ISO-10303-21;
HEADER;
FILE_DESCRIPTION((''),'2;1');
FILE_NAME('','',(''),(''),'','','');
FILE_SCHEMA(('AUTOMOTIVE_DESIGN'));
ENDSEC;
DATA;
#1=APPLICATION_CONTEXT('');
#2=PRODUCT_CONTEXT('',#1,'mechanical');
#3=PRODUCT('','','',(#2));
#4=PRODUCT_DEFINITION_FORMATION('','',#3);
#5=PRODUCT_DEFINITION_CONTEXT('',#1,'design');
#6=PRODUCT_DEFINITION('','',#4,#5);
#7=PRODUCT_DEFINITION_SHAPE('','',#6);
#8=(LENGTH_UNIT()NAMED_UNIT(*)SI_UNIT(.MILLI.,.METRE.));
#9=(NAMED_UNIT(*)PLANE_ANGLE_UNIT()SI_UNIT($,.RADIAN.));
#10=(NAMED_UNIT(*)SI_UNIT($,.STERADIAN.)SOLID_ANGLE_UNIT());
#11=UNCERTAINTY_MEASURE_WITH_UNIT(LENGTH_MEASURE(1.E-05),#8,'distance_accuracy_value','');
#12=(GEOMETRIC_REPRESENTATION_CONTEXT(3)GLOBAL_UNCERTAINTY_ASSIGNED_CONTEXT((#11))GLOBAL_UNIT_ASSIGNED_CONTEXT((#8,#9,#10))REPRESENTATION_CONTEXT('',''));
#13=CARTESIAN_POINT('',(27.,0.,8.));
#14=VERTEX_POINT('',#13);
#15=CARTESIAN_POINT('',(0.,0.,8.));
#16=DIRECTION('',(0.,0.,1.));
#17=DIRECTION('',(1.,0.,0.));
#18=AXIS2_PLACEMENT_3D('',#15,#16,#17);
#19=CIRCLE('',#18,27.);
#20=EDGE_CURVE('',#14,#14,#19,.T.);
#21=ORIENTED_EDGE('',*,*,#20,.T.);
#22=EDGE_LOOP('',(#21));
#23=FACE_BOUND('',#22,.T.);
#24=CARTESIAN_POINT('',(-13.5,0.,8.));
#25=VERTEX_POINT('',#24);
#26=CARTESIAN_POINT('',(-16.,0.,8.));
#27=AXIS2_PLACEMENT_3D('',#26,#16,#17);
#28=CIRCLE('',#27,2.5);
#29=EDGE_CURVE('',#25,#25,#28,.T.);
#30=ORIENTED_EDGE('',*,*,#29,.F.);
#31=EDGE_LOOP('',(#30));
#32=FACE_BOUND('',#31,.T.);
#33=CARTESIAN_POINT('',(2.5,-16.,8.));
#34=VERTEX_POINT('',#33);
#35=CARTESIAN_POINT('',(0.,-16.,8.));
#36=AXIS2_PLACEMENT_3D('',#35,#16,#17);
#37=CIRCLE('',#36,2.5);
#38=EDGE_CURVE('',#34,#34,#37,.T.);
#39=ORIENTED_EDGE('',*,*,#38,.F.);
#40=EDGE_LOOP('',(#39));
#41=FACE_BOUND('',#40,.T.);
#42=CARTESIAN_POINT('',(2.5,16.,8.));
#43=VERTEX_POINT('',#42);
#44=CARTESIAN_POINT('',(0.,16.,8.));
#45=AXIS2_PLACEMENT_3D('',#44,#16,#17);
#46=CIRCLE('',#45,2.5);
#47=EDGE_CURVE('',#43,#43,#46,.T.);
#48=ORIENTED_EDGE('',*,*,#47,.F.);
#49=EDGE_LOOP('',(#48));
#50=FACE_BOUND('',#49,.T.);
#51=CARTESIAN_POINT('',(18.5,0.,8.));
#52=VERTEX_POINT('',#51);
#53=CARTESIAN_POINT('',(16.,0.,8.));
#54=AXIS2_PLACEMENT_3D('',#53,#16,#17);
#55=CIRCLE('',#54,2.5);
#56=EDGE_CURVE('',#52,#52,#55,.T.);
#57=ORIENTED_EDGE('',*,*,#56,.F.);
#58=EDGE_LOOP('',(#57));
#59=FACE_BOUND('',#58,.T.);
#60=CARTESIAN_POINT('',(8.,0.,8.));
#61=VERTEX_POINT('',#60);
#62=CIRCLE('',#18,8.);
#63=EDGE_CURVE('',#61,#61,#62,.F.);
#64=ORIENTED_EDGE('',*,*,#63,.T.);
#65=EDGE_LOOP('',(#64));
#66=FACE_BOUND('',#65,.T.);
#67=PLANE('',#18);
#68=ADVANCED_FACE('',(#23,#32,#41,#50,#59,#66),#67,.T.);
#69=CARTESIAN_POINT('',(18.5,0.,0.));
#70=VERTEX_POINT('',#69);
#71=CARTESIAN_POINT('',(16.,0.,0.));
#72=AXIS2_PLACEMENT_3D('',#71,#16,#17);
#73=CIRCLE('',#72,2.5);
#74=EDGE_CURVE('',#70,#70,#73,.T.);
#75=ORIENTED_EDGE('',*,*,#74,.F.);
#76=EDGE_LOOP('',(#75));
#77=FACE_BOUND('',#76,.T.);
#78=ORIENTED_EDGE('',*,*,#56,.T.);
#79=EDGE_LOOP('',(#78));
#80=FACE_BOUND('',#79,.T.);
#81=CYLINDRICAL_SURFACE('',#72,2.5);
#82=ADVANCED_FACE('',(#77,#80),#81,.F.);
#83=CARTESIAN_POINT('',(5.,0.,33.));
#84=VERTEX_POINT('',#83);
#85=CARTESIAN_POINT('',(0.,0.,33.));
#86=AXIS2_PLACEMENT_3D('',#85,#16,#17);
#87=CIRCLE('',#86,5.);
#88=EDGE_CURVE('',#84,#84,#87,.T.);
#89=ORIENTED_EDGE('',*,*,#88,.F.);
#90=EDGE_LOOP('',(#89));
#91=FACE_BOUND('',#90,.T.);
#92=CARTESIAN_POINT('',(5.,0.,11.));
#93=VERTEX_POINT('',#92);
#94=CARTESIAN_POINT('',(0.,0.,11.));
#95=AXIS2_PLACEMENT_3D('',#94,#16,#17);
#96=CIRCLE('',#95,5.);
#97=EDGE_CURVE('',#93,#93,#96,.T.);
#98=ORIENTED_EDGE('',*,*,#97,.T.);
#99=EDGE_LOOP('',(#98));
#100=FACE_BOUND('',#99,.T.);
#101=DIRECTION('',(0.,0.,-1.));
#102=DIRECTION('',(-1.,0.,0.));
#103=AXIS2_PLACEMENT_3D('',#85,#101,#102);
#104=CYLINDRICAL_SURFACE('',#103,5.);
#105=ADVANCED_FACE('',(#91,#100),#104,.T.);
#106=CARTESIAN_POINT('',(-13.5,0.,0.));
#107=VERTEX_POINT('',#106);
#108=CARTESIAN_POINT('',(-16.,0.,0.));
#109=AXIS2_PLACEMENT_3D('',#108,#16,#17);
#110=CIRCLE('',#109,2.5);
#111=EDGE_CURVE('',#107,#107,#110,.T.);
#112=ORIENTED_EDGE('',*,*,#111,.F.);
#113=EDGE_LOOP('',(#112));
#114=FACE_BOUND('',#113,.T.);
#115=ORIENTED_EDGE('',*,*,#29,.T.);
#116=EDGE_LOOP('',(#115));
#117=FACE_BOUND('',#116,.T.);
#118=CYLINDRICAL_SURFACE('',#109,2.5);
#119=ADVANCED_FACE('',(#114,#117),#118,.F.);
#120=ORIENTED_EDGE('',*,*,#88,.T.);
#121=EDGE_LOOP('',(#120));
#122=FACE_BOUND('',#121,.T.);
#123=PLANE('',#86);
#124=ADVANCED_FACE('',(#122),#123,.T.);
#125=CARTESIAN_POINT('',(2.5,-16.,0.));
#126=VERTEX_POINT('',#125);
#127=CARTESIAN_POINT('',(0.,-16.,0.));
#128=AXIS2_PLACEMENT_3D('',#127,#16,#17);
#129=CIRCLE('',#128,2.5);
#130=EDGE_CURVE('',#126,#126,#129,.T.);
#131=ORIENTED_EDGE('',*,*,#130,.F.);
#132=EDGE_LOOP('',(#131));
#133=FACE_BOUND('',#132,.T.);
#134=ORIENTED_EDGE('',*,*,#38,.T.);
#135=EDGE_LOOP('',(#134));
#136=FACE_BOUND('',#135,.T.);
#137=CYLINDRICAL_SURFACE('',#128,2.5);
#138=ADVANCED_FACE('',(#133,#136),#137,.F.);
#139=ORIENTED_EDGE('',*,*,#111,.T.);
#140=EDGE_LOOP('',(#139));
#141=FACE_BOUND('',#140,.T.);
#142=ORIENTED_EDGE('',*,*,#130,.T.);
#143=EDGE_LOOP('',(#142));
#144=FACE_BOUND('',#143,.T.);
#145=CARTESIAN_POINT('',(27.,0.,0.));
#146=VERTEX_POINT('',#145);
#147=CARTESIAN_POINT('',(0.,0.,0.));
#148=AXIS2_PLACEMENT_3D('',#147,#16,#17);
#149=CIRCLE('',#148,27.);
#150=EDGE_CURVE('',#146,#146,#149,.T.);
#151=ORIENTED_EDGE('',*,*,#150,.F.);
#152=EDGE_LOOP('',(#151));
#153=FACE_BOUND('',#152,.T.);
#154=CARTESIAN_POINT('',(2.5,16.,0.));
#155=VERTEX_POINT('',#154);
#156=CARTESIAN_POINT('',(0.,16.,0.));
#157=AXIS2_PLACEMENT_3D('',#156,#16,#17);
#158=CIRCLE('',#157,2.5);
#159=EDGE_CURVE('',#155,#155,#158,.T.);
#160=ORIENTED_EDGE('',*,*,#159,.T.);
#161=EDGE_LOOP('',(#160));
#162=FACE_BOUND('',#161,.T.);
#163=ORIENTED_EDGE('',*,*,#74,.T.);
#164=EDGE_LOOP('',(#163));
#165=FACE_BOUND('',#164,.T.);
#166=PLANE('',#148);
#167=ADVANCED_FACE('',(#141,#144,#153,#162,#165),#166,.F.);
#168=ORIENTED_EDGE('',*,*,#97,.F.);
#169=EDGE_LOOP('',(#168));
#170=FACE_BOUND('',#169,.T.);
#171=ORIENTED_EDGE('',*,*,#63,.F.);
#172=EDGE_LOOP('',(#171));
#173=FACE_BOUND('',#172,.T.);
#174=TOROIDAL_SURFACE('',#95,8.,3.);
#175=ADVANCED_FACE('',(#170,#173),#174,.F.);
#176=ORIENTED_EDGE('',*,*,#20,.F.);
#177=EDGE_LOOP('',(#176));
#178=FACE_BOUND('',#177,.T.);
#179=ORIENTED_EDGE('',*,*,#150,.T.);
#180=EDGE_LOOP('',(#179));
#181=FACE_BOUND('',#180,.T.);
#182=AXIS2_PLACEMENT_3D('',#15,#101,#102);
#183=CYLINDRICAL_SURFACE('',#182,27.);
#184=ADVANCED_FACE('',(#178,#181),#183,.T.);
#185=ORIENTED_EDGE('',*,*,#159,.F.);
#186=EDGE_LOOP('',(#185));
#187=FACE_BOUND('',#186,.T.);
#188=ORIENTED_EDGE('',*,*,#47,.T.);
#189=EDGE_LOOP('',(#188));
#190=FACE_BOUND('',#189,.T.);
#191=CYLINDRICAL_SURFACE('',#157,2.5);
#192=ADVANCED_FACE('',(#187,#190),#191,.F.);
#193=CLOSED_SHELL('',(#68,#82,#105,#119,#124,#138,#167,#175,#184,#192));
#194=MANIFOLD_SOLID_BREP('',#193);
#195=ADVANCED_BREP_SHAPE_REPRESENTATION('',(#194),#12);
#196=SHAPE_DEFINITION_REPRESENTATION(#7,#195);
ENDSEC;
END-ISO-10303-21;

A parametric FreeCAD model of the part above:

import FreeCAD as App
import Part
import Sketcher

V = App.Vector


def edges_at(feature, points):
    """Names of the edges that pass closest to the given points."""
    edges = feature.Shape.Edges
    near = lambda p: min(range(len(edges)), key=lambda i: edges[i].distToShape(Part.Vertex(*p))[0])
    return sorted({f"Edge{near(p) + 1}" for p in points})

doc = App.newDocument("Part")
params = doc.addObject("Spreadsheet::Sheet", "Params")
for row, (alias, value) in enumerate([
    ("sketch1_diameter", "54 mm"),
    ("pad1_length", "8 mm"),
    ("sketch2_diameter", "5 mm"),
    ("pocket1_length", "8 mm"),
    ("sketch3_diameter", "10 mm"),
    ("pad2_length", "25 mm"),
    ("fillet_radius", "3 mm"),
], start=1):
    params.set(f"A{row}", alias)
    params.set(f"B{row}", "=" + value)
    params.setAlias(f"B{row}", alias)

body = doc.addObject("PartDesign::Body", "Body")

# Sketch on XY plane
sketch1 = body.newObject("Sketcher::SketchObject", "Sketch")
sketch1.AttachmentSupport = (doc.getObject("XY_Plane"), [""])
sketch1.MapMode = "FlatFace"
sketch1.addGeometry(Part.Circle(V(0, 0, 0), V(0, 0, 1), 27), False)
sketch1.addConstraint([
    Sketcher.Constraint("Coincident", 0, 3, -1, 1),
    Sketcher.Constraint("Diameter", 0, 54.0),
])
sketch1.setExpression("Constraints[1]", "Params.sketch1_diameter")
pad1 = body.newObject("PartDesign::Pad", "Pad")
pad1.Profile = sketch1
pad1.setExpression("Length", "Params.pad1_length")

# Sketch on XY plane
sketch2 = body.newObject("Sketcher::SketchObject", "Sketch001")
sketch2.AttachmentSupport = (doc.getObject("XY_Plane"), [""])
sketch2.MapMode = "FlatFace"
sketch2.AttachmentOffset = App.Placement(V(0, 0, 8), App.Rotation())
sketch2.addGeometry([
    Part.Circle(V(-16, 0, 0), V(0, 0, 1), 2.5),
    Part.Circle(V(0, 16, 0), V(0, 0, 1), 2.5),
    Part.Circle(V(16, 0, 0), V(0, 0, 1), 2.5),
    Part.Circle(V(0, -16, 0), V(0, 0, 1), 2.5),
], False)
sketch2.addConstraint([
    Sketcher.Constraint("Equal", 0, 1),
    Sketcher.Constraint("Equal", 1, 2),
    Sketcher.Constraint("Equal", 2, 3),
    Sketcher.Constraint("Symmetric", 0, 3, 2, 3, -1, 1),
    Sketcher.Constraint("Symmetric", 1, 3, 3, 3, -1, 1),
    Sketcher.Constraint("PointOnObject", 0, 3, -1),
    Sketcher.Constraint("PointOnObject", 1, 3, -2),
    Sketcher.Constraint("Diameter", 0, 5.0),
    Sketcher.Constraint("DistanceX", 0, 3, -1, 1, 16.0),
    Sketcher.Constraint("DistanceY", -1, 1, 1, 3, 16.0),
])
sketch2.setExpression("Constraints[7]", "Params.sketch2_diameter")
pocket1 = body.newObject("PartDesign::Pocket", "Pocket")
pocket1.Profile = sketch2
pocket1.setExpression("Length", "Params.pocket1_length")

# Sketch on XY plane
sketch3 = body.newObject("Sketcher::SketchObject", "Sketch002")
sketch3.AttachmentSupport = (doc.getObject("XY_Plane"), [""])
sketch3.MapMode = "FlatFace"
sketch3.AttachmentOffset = App.Placement(V(0, 0, 8), App.Rotation())
sketch3.addGeometry(Part.Circle(V(0, 0, 0), V(0, 0, 1), 5), False)
sketch3.addConstraint([
    Sketcher.Constraint("Coincident", 0, 3, -1, 1),
    Sketcher.Constraint("Diameter", 0, 10.0),
])
sketch3.setExpression("Constraints[1]", "Params.sketch3_diameter")
pad2 = body.newObject("PartDesign::Pad", "Pad001")
pad2.Profile = sketch3
pad2.setExpression("Length", "Params.pad2_length")
doc.recompute()

fillet = body.newObject("PartDesign::Fillet", "Fillet")
fillet.Base = (pad2, edges_at(pad2, [(-5, 0, 8)]))
fillet.setExpression("Radius", "Params.fillet_radius")

doc.recompute()
